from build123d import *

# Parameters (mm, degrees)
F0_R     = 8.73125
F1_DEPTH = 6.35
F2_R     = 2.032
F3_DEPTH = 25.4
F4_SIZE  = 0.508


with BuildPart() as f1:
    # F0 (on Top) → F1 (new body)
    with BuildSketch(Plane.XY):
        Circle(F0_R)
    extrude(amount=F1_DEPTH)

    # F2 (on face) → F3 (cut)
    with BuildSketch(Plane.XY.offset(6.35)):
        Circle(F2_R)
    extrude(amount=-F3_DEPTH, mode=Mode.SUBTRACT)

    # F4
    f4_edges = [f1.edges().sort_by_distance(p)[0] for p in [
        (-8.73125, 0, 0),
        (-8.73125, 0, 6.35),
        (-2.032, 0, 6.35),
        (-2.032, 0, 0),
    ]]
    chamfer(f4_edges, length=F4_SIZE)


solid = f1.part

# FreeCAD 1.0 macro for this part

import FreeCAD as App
import Part
import Sketcher

V = App.Vector
Q = App.Units.Quantity


def edges_at(feature, points):
    """Names of the edges that pass closest to the given points."""
    edges = feature.Shape.Edges
    near = lambda p: min(range(len(edges)), key=lambda i: edges[i].distToShape(Part.Vertex(*p))[0])
    return sorted({f"Edge{near(p) + 1}" for p in points})

doc = App.newDocument("Part")
body = doc.addObject("PartDesign::Body", "Body")

# Sketch on XY plane
sketch1 = doc.addObject("Sketcher::SketchObject", "Sketch")
body.addObject(sketch1)
sketch1.AttachmentSupport = (doc.XY_Plane, [""])
sketch1.MapMode = "FlatFace"
sketch1.addGeometry(Part.Circle(V(0, 0, 0), V(0, 0, 1), 8.73125), False)
sketch1.addConstraint([
    Sketcher.Constraint("Coincident", 0, 3, -1, 1),
    Sketcher.Constraint("Diameter", 0, Q("0.6875 in")),
])
pad1 = doc.addObject("PartDesign::Pad", "Pad")
body.addObject(pad1)
pad1.Profile = sketch1
pad1.Length = Q("0.25 in")

# Sketch on XY plane
sketch2 = doc.addObject("Sketcher::SketchObject", "Sketch001")
body.addObject(sketch2)
sketch2.AttachmentSupport = (doc.XY_Plane, [""])
sketch2.MapMode = "FlatFace"
sketch2.AttachmentOffset = App.Placement(V(0, 0, 0.25 * 25.4), App.Rotation())
sketch2.addGeometry(Part.Circle(V(0, 0, 0), V(0, 0, 1), 2.032), False)
sketch2.addConstraint([
    Sketcher.Constraint("Coincident", 0, 3, -1, 1),
    Sketcher.Constraint("Diameter", 0, Q("0.16 in")),
])
pocket1 = doc.addObject("PartDesign::Pocket", "Pocket")
body.addObject(pocket1)
pocket1.Profile = sketch2
pocket1.Length = Q("1 in")
doc.recompute()

chamfer = doc.addObject("PartDesign::Chamfer", "Chamfer")
body.addObject(chamfer)
chamfer.Base = (pocket1, edges_at(pocket1, [
    (-8.731, 0, 0),
    (-8.731, 0, 6.35),
    (-2.032, 0, 6.35),
    (-2.032, 0, 0),
]))
chamfer.Size = Q("0.02 in")

doc.recompute()
